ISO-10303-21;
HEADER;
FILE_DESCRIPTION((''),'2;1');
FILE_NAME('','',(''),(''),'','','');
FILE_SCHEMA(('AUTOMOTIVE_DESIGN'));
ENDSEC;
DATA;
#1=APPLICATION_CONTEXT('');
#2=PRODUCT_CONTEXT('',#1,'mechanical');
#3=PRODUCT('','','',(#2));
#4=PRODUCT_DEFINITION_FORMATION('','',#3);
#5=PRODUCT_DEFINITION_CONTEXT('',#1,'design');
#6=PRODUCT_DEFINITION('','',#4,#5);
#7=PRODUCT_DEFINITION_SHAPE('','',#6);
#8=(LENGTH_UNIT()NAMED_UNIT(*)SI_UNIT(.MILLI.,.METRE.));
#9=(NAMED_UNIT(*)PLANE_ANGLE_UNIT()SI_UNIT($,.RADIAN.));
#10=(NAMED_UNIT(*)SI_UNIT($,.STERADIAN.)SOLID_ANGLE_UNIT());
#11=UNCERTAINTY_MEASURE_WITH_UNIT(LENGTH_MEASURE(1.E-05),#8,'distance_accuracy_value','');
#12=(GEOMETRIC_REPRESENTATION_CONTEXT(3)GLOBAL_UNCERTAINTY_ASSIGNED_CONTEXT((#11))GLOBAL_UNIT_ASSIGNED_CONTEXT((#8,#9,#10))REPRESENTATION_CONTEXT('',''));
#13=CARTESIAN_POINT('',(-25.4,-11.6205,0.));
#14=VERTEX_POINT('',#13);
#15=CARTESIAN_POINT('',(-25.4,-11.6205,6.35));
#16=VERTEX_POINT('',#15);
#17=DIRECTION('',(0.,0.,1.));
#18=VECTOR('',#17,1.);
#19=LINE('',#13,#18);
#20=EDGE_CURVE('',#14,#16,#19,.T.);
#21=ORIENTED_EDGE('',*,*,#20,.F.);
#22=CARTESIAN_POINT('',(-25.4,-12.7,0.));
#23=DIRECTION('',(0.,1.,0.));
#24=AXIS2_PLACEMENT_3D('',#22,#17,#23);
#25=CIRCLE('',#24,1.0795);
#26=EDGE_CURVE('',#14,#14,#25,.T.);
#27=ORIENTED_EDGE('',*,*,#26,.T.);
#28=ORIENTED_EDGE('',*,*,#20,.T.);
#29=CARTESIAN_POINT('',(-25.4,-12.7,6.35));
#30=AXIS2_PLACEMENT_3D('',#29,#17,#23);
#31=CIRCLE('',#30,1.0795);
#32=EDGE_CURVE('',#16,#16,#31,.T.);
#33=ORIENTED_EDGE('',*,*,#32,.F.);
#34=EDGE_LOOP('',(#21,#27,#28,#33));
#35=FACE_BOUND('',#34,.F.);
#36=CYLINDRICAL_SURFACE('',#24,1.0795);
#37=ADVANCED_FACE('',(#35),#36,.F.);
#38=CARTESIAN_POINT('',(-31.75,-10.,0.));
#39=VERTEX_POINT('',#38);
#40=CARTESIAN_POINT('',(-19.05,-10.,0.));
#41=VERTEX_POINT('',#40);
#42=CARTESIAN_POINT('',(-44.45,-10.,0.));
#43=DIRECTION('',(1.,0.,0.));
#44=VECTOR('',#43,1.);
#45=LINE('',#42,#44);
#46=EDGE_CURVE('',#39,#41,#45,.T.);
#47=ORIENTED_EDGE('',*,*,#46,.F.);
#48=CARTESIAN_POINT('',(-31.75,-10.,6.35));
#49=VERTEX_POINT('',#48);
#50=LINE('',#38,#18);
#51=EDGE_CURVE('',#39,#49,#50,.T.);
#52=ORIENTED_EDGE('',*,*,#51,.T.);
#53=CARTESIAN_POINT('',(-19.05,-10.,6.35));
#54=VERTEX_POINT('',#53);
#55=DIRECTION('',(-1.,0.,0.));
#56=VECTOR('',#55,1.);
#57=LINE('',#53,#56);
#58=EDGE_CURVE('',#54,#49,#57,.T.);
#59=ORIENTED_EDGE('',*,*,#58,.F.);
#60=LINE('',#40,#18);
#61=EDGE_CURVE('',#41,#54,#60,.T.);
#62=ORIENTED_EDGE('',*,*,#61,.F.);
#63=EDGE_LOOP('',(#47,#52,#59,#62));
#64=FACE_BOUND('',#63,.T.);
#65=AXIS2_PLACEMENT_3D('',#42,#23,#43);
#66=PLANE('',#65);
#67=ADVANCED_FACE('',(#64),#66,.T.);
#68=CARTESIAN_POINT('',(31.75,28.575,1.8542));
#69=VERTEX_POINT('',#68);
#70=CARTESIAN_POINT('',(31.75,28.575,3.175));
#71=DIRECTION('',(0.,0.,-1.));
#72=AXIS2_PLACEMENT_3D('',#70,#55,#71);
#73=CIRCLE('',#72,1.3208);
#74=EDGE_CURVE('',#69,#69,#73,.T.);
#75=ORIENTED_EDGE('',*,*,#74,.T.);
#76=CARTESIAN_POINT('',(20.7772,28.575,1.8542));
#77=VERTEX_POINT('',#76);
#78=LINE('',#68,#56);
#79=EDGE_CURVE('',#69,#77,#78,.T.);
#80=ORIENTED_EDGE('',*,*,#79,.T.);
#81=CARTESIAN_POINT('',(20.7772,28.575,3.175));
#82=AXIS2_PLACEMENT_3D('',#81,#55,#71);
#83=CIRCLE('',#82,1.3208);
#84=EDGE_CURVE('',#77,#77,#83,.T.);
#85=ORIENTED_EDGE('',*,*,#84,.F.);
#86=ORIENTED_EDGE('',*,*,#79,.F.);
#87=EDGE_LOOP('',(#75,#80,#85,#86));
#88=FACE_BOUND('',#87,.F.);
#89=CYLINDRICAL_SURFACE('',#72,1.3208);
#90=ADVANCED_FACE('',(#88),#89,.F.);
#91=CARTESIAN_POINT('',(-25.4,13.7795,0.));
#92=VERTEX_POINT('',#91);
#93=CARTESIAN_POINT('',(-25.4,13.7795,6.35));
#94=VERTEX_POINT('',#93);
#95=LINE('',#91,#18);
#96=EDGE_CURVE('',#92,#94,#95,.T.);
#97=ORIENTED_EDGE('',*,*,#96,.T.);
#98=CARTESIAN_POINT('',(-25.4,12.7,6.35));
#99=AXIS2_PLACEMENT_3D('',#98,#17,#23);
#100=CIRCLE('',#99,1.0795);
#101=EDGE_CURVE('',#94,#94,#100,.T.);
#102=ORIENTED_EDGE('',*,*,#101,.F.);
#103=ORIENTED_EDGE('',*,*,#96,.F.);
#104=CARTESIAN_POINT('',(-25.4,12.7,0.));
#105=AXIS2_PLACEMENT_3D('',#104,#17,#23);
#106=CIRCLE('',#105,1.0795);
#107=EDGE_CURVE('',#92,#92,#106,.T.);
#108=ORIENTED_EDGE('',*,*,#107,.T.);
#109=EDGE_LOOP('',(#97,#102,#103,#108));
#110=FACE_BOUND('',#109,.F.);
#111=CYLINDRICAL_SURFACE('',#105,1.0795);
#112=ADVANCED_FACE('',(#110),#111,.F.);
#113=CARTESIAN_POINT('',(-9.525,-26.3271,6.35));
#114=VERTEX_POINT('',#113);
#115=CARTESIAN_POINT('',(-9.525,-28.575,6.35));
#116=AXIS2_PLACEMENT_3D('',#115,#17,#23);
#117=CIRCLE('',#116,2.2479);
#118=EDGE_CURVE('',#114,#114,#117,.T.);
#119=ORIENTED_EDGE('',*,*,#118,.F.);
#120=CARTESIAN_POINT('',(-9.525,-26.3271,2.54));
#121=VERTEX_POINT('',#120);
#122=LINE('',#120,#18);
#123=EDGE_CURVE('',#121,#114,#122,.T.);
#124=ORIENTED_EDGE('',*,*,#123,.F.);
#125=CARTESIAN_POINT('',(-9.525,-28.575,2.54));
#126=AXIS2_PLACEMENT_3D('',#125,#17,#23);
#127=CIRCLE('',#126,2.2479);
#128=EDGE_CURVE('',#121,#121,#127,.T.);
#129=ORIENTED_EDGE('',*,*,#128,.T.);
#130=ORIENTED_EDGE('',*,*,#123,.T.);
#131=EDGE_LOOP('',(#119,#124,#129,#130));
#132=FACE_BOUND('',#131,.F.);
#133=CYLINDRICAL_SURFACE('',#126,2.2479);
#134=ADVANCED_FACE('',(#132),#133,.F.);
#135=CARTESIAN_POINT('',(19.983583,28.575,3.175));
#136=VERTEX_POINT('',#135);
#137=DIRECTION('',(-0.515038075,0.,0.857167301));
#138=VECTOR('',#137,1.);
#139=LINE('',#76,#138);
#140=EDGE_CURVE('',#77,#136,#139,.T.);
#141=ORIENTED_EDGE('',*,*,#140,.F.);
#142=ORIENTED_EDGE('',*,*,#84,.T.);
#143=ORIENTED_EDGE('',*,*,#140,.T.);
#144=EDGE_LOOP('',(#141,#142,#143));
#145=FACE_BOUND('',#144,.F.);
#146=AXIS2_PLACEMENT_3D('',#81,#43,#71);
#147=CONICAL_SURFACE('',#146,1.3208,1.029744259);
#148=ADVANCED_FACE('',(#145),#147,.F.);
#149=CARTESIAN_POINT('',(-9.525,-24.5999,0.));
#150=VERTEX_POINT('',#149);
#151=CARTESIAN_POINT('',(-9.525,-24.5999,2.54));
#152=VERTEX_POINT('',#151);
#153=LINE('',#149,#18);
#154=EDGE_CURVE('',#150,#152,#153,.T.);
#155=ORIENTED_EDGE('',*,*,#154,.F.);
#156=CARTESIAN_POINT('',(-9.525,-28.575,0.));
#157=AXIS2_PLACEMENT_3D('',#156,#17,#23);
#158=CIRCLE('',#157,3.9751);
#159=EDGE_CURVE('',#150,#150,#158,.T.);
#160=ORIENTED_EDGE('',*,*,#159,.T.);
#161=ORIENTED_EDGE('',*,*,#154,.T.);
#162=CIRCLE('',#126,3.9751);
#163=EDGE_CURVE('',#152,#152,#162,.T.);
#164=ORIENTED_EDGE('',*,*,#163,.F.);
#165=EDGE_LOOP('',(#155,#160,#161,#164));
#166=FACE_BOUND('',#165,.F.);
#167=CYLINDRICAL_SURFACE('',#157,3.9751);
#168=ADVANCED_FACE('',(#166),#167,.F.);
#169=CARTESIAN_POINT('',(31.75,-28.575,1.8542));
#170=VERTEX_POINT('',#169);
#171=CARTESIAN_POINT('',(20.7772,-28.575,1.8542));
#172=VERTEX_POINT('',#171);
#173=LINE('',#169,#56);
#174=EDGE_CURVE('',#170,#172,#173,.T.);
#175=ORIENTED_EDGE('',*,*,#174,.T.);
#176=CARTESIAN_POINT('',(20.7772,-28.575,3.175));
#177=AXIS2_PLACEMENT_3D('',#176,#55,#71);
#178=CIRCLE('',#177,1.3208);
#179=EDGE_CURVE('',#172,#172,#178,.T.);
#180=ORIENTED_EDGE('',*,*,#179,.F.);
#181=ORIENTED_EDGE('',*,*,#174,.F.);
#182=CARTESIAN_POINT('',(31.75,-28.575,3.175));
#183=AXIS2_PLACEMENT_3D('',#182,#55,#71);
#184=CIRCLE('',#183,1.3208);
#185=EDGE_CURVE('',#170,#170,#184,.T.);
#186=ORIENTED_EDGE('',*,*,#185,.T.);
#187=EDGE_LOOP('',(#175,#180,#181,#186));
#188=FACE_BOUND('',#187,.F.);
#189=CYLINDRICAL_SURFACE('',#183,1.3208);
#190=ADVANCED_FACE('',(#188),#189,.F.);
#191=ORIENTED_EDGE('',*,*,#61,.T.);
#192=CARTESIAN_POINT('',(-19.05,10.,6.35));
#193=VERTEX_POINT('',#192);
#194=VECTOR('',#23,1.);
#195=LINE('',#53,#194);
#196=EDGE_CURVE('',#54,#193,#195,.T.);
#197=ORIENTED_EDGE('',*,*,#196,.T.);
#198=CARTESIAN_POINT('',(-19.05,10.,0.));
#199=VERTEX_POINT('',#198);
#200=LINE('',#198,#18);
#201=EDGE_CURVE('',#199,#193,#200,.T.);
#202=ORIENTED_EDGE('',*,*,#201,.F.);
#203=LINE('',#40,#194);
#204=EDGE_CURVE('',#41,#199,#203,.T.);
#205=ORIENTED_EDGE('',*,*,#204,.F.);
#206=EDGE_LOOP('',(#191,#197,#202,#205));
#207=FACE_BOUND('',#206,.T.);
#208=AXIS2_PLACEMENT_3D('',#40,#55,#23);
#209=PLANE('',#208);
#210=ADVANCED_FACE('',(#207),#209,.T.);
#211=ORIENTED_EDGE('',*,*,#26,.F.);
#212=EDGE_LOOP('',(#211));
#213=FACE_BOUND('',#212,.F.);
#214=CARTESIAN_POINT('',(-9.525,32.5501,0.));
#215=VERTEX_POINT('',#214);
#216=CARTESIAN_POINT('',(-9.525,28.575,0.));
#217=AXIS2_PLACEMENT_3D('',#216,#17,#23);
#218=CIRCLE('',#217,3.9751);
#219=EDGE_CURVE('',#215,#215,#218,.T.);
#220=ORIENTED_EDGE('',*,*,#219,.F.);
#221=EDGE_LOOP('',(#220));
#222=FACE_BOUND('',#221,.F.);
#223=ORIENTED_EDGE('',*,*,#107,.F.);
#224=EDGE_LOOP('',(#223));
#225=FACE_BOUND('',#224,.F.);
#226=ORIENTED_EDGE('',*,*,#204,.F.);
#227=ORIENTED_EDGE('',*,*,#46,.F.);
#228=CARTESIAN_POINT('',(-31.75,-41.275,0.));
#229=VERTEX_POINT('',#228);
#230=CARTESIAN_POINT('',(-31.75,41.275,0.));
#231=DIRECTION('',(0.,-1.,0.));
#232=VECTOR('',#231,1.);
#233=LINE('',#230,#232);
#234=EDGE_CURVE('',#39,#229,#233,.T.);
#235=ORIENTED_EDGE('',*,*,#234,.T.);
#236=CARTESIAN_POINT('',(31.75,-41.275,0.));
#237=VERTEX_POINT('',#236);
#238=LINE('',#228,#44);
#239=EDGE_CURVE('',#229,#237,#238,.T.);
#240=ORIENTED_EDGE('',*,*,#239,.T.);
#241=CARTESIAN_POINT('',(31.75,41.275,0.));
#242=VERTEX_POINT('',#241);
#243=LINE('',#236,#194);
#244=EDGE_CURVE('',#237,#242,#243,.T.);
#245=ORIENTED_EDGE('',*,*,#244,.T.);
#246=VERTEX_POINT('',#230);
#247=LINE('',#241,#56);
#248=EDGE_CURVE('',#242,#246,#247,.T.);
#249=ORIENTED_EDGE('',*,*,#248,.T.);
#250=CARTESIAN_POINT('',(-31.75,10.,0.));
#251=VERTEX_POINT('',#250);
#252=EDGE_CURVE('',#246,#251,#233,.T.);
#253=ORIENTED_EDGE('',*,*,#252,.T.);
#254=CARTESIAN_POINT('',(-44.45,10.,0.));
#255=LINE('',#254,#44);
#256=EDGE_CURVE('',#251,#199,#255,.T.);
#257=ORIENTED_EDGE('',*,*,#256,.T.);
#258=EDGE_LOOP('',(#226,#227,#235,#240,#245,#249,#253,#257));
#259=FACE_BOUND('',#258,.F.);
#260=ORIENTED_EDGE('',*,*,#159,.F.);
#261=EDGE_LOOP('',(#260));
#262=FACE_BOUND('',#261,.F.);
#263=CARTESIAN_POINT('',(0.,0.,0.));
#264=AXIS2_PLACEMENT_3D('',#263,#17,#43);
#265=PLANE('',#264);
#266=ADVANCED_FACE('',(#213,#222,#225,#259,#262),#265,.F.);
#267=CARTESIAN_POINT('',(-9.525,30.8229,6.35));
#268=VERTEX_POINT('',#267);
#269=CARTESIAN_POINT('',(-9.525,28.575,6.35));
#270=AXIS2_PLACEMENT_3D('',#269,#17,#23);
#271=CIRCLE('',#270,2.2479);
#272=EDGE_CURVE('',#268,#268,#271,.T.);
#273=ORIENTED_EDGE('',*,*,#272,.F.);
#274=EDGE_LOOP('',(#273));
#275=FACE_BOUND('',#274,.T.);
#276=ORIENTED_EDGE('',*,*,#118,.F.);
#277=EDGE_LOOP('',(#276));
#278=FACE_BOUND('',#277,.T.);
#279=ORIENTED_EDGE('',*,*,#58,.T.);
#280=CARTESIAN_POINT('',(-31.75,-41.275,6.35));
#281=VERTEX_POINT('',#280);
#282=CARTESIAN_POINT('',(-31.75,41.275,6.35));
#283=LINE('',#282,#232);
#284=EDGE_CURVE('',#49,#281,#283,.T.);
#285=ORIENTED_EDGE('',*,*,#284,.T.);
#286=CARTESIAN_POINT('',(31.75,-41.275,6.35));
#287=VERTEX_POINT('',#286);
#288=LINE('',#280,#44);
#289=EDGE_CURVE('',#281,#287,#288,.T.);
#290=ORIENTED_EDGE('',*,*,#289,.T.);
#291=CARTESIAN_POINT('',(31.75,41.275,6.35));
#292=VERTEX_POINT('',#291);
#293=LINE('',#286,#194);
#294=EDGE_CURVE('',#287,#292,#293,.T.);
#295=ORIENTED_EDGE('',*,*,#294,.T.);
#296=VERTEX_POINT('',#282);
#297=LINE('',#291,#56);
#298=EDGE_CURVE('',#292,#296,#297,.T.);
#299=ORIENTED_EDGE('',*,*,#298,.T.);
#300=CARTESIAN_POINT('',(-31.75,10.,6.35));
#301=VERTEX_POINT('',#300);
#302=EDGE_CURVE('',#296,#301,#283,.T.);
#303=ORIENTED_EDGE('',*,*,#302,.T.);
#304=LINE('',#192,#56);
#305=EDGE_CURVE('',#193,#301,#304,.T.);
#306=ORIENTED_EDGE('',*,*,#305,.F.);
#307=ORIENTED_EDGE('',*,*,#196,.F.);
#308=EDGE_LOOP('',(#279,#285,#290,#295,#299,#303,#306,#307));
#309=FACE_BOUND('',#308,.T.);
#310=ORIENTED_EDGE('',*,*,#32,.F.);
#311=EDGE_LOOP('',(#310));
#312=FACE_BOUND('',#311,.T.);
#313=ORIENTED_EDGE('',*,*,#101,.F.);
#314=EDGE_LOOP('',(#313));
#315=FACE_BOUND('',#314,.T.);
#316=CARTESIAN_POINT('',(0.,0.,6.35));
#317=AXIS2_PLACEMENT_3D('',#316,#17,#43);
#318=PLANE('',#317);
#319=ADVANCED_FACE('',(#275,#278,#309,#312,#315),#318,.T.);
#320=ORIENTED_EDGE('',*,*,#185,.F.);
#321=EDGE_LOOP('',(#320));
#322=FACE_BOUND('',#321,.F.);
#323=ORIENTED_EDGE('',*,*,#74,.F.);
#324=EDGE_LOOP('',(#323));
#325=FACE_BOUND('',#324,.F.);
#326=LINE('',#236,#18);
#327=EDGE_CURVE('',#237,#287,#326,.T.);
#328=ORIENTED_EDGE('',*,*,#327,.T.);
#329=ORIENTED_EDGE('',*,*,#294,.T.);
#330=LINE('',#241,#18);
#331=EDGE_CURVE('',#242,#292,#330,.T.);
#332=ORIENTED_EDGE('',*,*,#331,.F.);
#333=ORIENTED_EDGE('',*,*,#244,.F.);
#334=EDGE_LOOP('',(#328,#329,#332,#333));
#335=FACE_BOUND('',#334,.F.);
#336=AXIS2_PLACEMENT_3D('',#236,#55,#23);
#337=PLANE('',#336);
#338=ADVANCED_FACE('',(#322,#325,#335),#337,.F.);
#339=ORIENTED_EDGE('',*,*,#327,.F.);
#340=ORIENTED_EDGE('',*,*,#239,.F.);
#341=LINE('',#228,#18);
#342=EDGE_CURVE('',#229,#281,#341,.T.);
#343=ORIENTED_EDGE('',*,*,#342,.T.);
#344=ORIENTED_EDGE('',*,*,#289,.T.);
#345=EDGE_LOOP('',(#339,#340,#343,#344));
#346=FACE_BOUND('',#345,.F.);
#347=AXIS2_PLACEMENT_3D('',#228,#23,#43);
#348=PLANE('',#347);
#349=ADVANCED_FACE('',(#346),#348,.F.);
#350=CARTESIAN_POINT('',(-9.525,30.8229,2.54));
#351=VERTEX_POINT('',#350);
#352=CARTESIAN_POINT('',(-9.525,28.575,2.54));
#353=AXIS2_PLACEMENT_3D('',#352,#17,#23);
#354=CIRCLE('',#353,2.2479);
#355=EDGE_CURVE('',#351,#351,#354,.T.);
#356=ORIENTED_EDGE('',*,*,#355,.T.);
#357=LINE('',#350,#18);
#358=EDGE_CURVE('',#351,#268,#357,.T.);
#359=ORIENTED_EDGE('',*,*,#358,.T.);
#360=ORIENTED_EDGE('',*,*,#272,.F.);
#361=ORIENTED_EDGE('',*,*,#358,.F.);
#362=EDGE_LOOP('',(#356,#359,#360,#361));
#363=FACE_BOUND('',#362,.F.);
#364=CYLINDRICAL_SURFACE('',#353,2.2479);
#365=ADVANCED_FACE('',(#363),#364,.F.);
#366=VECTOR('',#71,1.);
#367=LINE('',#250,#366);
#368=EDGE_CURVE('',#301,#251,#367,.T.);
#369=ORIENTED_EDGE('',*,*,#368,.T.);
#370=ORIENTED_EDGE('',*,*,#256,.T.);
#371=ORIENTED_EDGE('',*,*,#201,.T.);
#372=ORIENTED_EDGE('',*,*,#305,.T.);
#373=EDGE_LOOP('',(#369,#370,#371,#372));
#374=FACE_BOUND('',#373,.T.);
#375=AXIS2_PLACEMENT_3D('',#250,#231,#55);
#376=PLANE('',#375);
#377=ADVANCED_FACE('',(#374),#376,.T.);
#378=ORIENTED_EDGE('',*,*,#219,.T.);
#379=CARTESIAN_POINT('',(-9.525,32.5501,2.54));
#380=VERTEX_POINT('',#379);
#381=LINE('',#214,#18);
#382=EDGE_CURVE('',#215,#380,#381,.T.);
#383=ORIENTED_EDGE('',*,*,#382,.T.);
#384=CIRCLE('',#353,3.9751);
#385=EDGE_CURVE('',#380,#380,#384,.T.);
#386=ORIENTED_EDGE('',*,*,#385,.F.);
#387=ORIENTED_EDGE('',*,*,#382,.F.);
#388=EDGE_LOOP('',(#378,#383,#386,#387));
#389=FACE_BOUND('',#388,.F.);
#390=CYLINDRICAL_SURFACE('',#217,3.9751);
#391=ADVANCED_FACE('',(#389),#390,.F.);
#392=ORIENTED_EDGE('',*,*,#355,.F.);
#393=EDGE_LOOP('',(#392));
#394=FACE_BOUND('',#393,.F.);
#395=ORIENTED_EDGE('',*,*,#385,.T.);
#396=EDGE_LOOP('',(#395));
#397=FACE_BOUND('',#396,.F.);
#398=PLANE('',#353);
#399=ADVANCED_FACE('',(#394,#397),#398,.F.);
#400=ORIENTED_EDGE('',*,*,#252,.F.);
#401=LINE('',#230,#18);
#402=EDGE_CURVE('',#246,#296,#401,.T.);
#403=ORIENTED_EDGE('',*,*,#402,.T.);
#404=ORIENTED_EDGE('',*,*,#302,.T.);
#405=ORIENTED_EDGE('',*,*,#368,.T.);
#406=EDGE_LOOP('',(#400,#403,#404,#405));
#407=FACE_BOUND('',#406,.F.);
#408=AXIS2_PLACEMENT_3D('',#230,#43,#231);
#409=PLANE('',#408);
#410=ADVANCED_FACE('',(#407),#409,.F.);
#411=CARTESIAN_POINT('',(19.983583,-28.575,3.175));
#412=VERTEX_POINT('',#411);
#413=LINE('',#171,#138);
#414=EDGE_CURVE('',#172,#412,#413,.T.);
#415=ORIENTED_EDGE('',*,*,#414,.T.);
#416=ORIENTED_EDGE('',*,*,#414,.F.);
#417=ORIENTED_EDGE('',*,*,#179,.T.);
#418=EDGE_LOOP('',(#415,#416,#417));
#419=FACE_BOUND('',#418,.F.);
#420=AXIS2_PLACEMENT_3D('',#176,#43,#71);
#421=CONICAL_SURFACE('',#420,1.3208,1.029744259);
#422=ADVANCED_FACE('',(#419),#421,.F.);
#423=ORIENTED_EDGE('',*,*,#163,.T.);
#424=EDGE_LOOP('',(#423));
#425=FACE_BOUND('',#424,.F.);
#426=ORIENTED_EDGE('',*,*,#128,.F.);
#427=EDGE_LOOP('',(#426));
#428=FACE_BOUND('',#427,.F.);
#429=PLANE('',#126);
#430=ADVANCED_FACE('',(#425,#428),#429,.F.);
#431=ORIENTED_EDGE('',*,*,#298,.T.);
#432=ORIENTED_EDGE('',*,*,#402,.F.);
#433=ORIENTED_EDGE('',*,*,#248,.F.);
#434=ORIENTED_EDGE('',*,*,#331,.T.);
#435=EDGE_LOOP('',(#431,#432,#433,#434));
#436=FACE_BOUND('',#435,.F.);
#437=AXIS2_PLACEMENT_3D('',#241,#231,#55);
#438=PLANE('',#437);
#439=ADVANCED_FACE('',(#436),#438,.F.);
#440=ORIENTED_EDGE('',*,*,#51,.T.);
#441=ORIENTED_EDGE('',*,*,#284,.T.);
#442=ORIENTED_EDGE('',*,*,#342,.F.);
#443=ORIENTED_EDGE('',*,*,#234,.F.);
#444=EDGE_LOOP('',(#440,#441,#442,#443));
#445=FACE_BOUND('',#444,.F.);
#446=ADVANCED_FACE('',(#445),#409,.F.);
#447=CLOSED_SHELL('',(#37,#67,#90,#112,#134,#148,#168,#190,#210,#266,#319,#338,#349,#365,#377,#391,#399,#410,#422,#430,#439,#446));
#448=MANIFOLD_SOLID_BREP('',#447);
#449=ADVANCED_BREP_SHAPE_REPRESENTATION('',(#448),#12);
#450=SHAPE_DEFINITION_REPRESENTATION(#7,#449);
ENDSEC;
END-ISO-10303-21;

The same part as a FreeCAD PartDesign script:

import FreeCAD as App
import Part
import Sketcher
Q = App.Units.Quantity

doc = App.newDocument("Part")
body = doc.addObject("PartDesign::Body", "Body")

# Sketch on XY plane
sketch1 = body.newObject("Sketcher::SketchObject", "Sketch")
sketch1.AttachmentSupport = (doc.getObject("XY_Plane"), [""])
sketch1.MapMode = "FlatFace"
sketch1.addGeometry([
    Part.LineSegment(App.Vector(-32, 41, 0), App.Vector(-32, -41, 0)),
    Part.LineSegment(App.Vector(-32, -41, 0), App.Vector(32, -41, 0)),
    Part.LineSegment(App.Vector(32, -41, 0), App.Vector(32, 41, 0)),
    Part.LineSegment(App.Vector(32, 41, 0), App.Vector(-32, 41, 0)),
], False)
sketch1.addConstraint([
    Sketcher.Constraint("Coincident", 0, 2, 1, 1),
    Sketcher.Constraint("Coincident", 1, 2, 2, 1),
    Sketcher.Constraint("Coincident", 2, 2, 3, 1),
    Sketcher.Constraint("Coincident", 3, 2, 0, 1),
    Sketcher.Constraint("Vertical", 0),
    Sketcher.Constraint("Horizontal", 1),
    Sketcher.Constraint("Vertical", 2),
    Sketcher.Constraint("Horizontal", 3),
    Sketcher.Constraint("Symmetric", 0, 2, 2, 2, -1, 1),
    Sketcher.Constraint("DistanceX", 1, 1, 1, 2, Q("2.5 in")),
    Sketcher.Constraint("DistanceY", 0, 2, 0, 1, Q("3.25 in")),
])
pad1 = body.newObject("PartDesign::Pad", "Pad")
pad1.Profile = sketch1
pad1.Length = Q("0.25 in")

# Sketch on XY plane
sketch2 = body.newObject("Sketcher::SketchObject", "Sketch001")
sketch2.AttachmentSupport = (doc.getObject("XY_Plane"), [""])
sketch2.MapMode = "FlatFace"
sketch2.addGeometry([
    Part.LineSegment(App.Vector(-44, -10, 0), App.Vector(-44, 10, 0)),
    Part.LineSegment(App.Vector(-44, 10, 0), App.Vector(-19, 10, 0)),
    Part.LineSegment(App.Vector(-19, 10, 0), App.Vector(-19, -10, 0)),
    Part.LineSegment(App.Vector(-19, -10, 0), App.Vector(-44, -10, 0)),
], False)
sketch2.addConstraint([
    Sketcher.Constraint("Coincident", 0, 2, 1, 1),
    Sketcher.Constraint("Coincident", 1, 2, 2, 1),
    Sketcher.Constraint("Coincident", 2, 2, 3, 1),
    Sketcher.Constraint("Coincident", 3, 2, 0, 1),
    Sketcher.Constraint("Vertical", 0),
    Sketcher.Constraint("Horizontal", 1),
    Sketcher.Constraint("Vertical", 2),
    Sketcher.Constraint("Horizontal", 3),
    Sketcher.Constraint("DistanceX", 1, 1, 1, 2, Q("1 in")),
    Sketcher.Constraint("DistanceY", 0, 1, 0, 2, Q("0.7874 in")),
    Sketcher.Constraint("DistanceX", 0, 2, -1, 1, Q("1.75 in")),
    Sketcher.Constraint("DistanceY", -1, 1, 0, 2, Q("0.3937 in")),
])
pocket1 = body.newObject("PartDesign::Pocket", "Pocket")
pocket1.Profile = sketch2
pocket1.Length = Q("0.25 in")
pocket1.Reversed = True

# Sketch on XY plane
sketch3 = body.newObject("Sketcher::SketchObject", "Sketch002")
sketch3.AttachmentSupport = (doc.getObject("XY_Plane"), [""])
sketch3.MapMode = "FlatFace"
sketch3.addGeometry([
    Part.Circle(App.Vector(-25.4, 12.7, 0), App.Vector(0, 0, 1), 1.1),
    Part.Circle(App.Vector(-25.4, -12.7, 0), App.Vector(0, 0, 1), 1.1),
], False)
sketch3.addConstraint([
    Sketcher.Constraint("Equal", 0, 1),
    Sketcher.Constraint("Symmetric", 0, 3, 1, 3, -1),
    Sketcher.Constraint("Diameter", 0, Q("0.085 in")),
    Sketcher.Constraint("DistanceX", 0, 3, -1, 1, Q("1 in")),
    Sketcher.Constraint("DistanceY", 1, 3, 0, 3, Q("1 in")),
])
doc.recompute()
hole = body.newObject("PartDesign::Hole", "Hole")
hole.Profile = sketch3
hole.ThreadType = "None"
hole.Diameter = Q("0.085 in")
hole.DepthType = "ThroughAll"
hole.Reversed = True

# Sketch on XY plane
sketch4 = body.newObject("Sketcher::SketchObject", "Sketch003")
sketch4.AttachmentSupport = (doc.getObject("XY_Plane"), [""])
sketch4.MapMode = "FlatFace"
sketch4.addGeometry([
    Part.Circle(App.Vector(-9.5, 28.6, 0), App.Vector(0, 0, 1), 2.2),
    Part.Circle(App.Vector(-9.5, -28.6, 0), App.Vector(0, 0, 1), 2.2),
], False)
sketch4.addConstraint([
    Sketcher.Constraint("Equal", 0, 1),
    Sketcher.Constraint("Symmetric", 0, 3, 1, 3, -1),
    Sketcher.Constraint("Diameter", 0, Q("0.177 in")),
    Sketcher.Constraint("DistanceY", 1, 3, 0, 3, Q("2.25 in")),
    Sketcher.Constraint("DistanceX", 0, 3, -1, 1, Q("0.375 in")),
])
doc.recompute()
hole2 = body.newObject("PartDesign::Hole", "Hole001")
hole2.Profile = sketch4
hole2.ThreadType = "None"
hole2.Diameter = Q("0.177 in")
hole2.DepthType = "Dimension"
hole2.Depth = Q("0.484 in")
hole2.DrillPoint = "Angled"
hole2.DrillPointAngle = 118
hole2.HoleCutType = "Counterbore"
hole2.HoleCutDiameter = Q("0.313 in")
hole2.HoleCutDepth = Q("0.1 in")
hole2.Reversed = True

# Sketch on YZ plane
sketch5 = body.newObject("Sketcher::SketchObject", "Sketch004")
sketch5.AttachmentSupport = (doc.getObject("YZ_Plane"), [""])
sketch5.MapMode = "FlatFace"
sketch5.AttachmentOffset = App.Placement(App.Vector(0, 0, 1.25 * 25.4), App.Rotation())
sketch5.addGeometry([
    Part.Circle(App.Vector(28.6, 3.2, 0), App.Vector(0, 0, 1), 1.3),
    Part.Circle(App.Vector(-28.6, 3.2, 0), App.Vector(0, 0, 1), 1.3),
], False)
sketch5.addConstraint([
    Sketcher.Constraint("Equal", 0, 1),
    Sketcher.Constraint("Symmetric", 0, 3, 1, 3, -2),
    Sketcher.Constraint("Diameter", 0, Q("0.104 in")),
    Sketcher.Constraint("DistanceX", 1, 3, 0, 3, Q("2.25 in")),
    Sketcher.Constraint("DistanceY", -1, 1, 0, 3, Q("0.125 in")),
])
doc.recompute()
hole3 = body.newObject("PartDesign::Hole", "Hole002")
hole3.Profile = sketch5
hole3.ThreadType = "None"
hole3.Diameter = Q("0.104 in")
hole3.DepthType = "Dimension"
hole3.Depth = Q("0.432 in")
hole3.DrillPoint = "Angled"
hole3.DrillPointAngle = 118

doc.recompute()
